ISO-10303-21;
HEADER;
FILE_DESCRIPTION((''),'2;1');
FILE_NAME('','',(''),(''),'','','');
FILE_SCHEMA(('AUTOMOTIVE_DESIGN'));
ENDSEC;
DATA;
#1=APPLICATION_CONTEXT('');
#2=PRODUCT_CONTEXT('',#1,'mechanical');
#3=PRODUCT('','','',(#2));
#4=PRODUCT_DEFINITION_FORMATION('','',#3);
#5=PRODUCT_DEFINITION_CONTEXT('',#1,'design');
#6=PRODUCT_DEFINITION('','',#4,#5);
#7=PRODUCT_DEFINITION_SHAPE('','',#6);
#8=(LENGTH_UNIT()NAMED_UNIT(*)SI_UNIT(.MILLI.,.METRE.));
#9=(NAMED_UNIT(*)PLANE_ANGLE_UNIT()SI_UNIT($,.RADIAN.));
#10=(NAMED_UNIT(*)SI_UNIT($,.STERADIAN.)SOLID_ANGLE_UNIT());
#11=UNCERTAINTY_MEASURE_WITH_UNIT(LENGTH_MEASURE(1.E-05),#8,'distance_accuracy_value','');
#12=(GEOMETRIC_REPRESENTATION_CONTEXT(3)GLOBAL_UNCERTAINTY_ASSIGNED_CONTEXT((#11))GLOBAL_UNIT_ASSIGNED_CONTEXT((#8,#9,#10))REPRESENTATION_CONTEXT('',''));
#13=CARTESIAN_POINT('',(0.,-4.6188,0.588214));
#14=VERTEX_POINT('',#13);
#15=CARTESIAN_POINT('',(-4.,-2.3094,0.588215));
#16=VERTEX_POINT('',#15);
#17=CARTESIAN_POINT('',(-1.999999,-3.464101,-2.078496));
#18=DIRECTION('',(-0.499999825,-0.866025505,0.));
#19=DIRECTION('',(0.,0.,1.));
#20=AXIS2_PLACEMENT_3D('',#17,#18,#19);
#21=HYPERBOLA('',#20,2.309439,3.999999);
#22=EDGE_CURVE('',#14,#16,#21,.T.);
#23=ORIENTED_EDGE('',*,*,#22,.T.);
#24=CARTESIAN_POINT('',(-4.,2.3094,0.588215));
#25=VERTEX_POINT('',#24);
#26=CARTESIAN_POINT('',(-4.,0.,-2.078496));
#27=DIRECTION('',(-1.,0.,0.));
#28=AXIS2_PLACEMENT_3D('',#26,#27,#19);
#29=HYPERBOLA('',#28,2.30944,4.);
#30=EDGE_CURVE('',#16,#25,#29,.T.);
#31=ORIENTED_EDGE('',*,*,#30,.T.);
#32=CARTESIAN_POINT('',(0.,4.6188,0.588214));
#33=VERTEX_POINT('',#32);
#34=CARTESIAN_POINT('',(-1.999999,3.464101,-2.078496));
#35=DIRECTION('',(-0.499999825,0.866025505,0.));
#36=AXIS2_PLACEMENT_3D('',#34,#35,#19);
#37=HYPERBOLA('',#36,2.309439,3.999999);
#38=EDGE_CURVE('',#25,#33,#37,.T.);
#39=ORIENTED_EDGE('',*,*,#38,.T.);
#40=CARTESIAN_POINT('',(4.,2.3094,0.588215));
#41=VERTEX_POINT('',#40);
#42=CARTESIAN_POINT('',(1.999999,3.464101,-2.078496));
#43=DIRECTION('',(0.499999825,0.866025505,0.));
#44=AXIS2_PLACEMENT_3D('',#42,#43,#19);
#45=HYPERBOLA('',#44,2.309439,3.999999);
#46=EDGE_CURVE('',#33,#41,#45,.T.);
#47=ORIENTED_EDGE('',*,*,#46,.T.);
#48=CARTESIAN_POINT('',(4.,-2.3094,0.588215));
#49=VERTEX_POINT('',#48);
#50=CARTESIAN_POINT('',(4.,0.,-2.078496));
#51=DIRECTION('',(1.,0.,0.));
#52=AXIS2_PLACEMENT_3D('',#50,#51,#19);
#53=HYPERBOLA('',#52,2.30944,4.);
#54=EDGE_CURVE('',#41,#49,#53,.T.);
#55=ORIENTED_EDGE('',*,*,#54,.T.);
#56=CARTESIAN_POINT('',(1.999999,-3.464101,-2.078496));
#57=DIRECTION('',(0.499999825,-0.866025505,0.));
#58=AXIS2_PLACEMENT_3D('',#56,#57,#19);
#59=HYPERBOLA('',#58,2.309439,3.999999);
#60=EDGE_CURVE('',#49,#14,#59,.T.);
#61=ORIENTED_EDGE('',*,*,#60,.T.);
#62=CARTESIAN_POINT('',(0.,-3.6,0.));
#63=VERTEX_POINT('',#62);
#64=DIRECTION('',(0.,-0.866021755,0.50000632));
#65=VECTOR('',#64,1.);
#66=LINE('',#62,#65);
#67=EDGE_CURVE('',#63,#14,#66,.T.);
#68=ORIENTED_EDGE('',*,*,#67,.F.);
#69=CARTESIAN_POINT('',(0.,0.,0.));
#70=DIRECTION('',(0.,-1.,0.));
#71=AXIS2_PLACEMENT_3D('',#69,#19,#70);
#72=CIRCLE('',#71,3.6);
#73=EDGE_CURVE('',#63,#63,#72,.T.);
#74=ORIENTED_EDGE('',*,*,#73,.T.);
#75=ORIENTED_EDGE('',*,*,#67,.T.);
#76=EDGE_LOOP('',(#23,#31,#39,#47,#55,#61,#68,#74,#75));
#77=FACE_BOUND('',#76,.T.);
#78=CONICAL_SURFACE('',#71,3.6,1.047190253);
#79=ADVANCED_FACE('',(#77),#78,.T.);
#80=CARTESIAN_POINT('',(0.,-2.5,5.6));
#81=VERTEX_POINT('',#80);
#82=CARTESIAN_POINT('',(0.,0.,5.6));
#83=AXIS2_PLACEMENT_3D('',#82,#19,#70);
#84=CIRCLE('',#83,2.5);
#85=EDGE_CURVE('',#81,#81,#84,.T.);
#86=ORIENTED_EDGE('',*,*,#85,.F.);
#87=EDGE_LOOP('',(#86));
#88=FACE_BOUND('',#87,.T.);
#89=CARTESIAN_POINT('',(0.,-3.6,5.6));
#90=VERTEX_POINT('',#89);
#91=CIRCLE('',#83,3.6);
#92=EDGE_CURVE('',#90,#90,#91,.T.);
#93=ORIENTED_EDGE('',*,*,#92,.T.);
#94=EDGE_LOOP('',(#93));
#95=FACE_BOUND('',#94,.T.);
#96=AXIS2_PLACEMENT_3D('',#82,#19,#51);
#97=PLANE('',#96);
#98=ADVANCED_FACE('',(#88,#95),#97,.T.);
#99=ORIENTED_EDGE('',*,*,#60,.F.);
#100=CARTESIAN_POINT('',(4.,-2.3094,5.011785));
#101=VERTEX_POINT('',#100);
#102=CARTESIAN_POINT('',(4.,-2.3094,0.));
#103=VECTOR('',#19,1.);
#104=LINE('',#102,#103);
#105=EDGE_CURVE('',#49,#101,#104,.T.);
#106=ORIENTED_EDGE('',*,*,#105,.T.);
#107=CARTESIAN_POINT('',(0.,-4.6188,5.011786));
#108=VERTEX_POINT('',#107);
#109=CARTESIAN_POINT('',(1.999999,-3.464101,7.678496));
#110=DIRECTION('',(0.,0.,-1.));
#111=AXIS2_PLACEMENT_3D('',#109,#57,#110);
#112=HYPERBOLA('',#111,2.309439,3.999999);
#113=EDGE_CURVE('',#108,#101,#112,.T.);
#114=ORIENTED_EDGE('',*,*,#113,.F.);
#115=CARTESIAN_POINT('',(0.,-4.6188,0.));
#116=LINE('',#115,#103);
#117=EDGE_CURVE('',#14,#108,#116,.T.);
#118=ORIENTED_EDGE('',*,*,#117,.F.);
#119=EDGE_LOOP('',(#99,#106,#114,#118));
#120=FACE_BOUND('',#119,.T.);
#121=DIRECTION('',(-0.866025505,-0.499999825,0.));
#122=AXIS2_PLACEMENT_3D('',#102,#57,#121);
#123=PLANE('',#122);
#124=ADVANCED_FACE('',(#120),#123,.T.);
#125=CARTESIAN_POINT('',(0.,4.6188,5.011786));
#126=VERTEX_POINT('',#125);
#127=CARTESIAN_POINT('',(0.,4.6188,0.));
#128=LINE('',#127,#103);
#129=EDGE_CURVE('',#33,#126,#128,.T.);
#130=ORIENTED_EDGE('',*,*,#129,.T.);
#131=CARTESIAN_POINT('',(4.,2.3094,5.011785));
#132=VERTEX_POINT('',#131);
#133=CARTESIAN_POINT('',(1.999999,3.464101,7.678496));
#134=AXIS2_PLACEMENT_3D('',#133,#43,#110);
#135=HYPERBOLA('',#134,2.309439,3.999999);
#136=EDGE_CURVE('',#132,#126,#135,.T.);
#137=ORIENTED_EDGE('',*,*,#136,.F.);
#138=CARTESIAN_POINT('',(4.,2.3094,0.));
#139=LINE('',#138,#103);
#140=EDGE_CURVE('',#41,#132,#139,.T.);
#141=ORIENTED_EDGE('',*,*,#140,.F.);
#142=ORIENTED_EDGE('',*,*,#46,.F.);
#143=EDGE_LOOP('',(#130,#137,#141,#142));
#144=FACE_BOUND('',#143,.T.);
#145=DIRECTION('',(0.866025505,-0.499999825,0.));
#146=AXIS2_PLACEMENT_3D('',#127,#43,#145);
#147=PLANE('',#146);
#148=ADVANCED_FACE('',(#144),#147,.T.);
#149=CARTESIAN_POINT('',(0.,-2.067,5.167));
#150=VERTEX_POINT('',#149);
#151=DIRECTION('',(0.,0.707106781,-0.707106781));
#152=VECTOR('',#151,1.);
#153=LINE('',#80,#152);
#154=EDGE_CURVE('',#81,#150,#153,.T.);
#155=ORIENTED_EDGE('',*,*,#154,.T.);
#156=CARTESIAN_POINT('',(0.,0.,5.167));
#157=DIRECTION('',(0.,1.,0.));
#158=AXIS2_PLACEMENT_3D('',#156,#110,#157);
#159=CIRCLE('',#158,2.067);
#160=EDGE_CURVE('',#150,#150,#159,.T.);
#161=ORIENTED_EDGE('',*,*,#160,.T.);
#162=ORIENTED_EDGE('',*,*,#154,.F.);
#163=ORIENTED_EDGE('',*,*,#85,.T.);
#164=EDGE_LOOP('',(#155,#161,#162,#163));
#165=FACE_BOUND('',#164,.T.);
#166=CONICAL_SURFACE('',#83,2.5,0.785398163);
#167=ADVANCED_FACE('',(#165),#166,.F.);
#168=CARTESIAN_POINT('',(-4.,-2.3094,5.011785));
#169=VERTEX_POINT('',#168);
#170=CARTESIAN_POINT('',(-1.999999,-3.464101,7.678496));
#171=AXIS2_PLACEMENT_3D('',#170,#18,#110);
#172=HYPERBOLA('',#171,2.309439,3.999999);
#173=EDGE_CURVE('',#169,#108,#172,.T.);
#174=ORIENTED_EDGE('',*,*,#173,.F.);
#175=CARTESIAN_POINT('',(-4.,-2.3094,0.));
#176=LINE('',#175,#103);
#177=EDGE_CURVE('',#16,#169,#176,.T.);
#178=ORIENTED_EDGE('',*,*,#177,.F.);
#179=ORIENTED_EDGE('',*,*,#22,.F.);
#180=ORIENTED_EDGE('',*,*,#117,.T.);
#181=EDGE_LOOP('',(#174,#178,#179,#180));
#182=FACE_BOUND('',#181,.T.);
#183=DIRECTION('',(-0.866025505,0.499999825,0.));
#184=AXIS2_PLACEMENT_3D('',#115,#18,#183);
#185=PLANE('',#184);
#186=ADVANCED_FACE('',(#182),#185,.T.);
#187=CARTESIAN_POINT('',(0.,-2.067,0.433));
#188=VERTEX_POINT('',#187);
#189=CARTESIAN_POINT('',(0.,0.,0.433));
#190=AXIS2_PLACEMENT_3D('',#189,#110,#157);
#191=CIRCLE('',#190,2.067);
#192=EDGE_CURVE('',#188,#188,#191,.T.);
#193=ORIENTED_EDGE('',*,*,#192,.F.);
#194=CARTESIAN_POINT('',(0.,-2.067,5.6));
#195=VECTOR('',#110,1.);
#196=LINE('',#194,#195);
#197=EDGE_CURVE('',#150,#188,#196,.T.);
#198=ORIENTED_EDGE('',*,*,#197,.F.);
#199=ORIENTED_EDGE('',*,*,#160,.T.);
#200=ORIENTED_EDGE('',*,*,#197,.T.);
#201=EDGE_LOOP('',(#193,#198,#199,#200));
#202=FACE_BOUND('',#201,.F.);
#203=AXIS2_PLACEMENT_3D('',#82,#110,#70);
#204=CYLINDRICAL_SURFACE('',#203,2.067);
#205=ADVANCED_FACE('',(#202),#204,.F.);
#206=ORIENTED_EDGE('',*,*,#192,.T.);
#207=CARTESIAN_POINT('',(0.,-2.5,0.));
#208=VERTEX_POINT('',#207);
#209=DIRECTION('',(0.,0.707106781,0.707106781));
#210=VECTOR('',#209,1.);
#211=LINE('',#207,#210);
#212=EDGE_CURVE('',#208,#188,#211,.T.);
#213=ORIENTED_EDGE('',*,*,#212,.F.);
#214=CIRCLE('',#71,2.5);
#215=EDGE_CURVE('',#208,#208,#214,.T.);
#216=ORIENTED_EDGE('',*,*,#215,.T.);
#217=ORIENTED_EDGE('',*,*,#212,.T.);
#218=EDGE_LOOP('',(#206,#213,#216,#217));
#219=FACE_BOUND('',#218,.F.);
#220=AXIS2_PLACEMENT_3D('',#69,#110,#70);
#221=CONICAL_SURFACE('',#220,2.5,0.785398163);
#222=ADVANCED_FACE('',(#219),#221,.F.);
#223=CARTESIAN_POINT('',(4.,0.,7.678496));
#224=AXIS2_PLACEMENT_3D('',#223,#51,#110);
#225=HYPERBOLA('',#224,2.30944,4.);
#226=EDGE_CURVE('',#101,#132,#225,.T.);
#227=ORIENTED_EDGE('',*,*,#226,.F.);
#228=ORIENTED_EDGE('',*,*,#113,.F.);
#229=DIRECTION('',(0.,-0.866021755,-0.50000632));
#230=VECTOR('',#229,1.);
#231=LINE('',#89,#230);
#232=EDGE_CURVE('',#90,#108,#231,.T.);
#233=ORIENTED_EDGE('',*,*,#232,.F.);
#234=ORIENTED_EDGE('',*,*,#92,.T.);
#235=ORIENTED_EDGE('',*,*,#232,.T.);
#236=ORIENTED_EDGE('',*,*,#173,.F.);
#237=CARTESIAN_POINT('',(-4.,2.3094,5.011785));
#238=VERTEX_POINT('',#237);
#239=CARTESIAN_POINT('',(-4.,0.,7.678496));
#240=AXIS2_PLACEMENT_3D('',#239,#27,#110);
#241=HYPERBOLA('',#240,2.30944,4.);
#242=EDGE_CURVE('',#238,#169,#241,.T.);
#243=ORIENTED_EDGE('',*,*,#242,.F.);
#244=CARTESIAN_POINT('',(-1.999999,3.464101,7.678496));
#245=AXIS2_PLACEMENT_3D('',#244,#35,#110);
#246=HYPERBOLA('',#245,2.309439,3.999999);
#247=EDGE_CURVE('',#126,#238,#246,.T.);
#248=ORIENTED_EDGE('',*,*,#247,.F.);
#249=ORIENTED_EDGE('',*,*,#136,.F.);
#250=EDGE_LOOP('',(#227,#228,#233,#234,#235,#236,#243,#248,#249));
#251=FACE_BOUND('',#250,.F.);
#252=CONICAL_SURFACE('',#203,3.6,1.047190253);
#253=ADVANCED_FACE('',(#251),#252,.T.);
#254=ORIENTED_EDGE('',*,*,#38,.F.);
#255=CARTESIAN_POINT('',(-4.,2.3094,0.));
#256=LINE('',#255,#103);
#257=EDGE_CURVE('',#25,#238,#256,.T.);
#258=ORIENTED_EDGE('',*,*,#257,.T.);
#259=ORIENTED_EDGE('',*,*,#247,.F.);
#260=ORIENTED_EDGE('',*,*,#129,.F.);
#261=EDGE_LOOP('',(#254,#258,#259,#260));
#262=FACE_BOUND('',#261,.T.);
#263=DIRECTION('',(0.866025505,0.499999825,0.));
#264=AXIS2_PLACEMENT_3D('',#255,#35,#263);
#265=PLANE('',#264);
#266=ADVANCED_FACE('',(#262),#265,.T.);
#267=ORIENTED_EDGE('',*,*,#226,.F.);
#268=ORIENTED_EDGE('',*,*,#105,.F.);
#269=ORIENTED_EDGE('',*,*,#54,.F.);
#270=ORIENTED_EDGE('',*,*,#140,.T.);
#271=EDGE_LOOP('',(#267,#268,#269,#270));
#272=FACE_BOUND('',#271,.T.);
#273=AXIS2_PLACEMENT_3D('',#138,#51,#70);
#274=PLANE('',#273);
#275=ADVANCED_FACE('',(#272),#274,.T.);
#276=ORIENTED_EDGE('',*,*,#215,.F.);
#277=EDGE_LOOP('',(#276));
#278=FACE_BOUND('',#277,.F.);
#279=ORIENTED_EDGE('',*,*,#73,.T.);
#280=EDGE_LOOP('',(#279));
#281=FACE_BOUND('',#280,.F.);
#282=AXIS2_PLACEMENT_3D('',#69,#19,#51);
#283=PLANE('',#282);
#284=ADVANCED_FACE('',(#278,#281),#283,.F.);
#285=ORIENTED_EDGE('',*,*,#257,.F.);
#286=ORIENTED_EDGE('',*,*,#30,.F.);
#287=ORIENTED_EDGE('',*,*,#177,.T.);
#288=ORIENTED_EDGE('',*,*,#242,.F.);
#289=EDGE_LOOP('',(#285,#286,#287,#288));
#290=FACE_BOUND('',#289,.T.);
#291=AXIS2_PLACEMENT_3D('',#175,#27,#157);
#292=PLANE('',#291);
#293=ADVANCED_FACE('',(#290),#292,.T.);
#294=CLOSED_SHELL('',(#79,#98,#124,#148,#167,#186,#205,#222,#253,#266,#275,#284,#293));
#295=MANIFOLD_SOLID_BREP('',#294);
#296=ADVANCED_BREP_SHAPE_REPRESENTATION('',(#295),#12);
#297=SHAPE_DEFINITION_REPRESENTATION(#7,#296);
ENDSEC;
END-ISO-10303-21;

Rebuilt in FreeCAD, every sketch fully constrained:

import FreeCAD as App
import Part
import Sketcher

V = App.Vector
Q = App.Units.Quantity

doc = App.newDocument("Part")
params = doc.addObject("Spreadsheet::Sheet", "Params")
for row, (alias, value) in enumerate([
    ("pad1_length", "5.6 mm"),
    ("hole_diameter", "4.134 mm"),
    ("sketch3_width", "2.5 mm"),
    ("groove_angle", "360 deg"),
    ("sketch4_width", "2.5 mm"),
    ("groove2_angle", "360 deg"),
    ("sketch5_width", "2.5 mm"),
    ("groove3_angle", "360 deg"),
], start=1):
    params.set(f"A{row}", alias)
    params.set(f"B{row}", "=" + value)
    params.setAlias(f"B{row}", alias)

body = doc.addObject("PartDesign::Body", "Body")

# Sketch on XY plane
sketch1 = doc.addObject("Sketcher::SketchObject", "Sketch")
body.addObject(sketch1)
sketch1.AttachmentSupport = (doc.XY_Plane, [""])
sketch1.MapMode = "FlatFace"
sketch1.addGeometry([
    Part.LineSegment(V(4, 2.3, 0), V(0, 4.6, 0)),  # 0
    Part.LineSegment(V(0, 4.6, 0), V(-4, 2.3, 0)),  # 1
    Part.LineSegment(V(-4, 2.3, 0), V(-4, -2.3, 0)),  # 2
    Part.LineSegment(V(-4, -2.3, 0), V(0, -4.6, 0)),  # 3
    Part.LineSegment(V(0, -4.6, 0), V(4, -2.3, 0)),  # 4
    Part.LineSegment(V(4, -2.3, 0), V(4, 2.3, 0)),  # 5
], False)
sketch1.addConstraint([
    Sketcher.Constraint("Coincident", 0, 2, 1, 1),
    Sketcher.Constraint("Coincident", 1, 2, 2, 1),
    Sketcher.Constraint("Coincident", 2, 2, 3, 1),
    Sketcher.Constraint("Coincident", 3, 2, 4, 1),
    Sketcher.Constraint("Coincident", 4, 2, 5, 1),
    Sketcher.Constraint("Coincident", 5, 2, 0, 1),
    Sketcher.Constraint("Vertical", 2),
    Sketcher.Constraint("Vertical", 5),
    Sketcher.Constraint("Symmetric", 0, 2, 3, 2, -1, 1),
    Sketcher.Constraint("Symmetric", 1, 2, 4, 2, -1, 1),
    Sketcher.Constraint("PointOnObject", 0, 2, -2),
    Sketcher.Constraint("Parallel", 0, 3),
    Sketcher.Constraint("Horizontal", 2, 2, 4, 2),
    Sketcher.Constraint("DistanceX", 2, 2, 4, 2, 8.0),
    Sketcher.Constraint("Angle", 0, Q("150 deg")),
    Sketcher.Constraint("DistanceY", 2, 2, 2, 1, 4.6188),
])
pad1 = doc.addObject("PartDesign::Pad", "Pad")
body.addObject(pad1)
pad1.Profile = sketch1
pad1.setExpression("Length", "Params.pad1_length")

# Sketch on XY plane
sketch2 = doc.addObject("Sketcher::SketchObject", "Sketch001")
body.addObject(sketch2)
sketch2.AttachmentSupport = (doc.XY_Plane, [""])
sketch2.MapMode = "FlatFace"
sketch2.AttachmentOffset = App.Placement(V(0, 0, 5.6), App.Rotation())
sketch2.addGeometry(Part.Circle(V(0, 0, 0), V(0, 0, 1), 2.1), False)
sketch2.addConstraint([
    Sketcher.Constraint("Coincident", 0, 3, -1, 1),
    Sketcher.Constraint("Diameter", 0, 4.134),
])
doc.recompute()
hole = doc.addObject("PartDesign::Hole", "Hole")
body.addObject(hole)
hole.Profile = sketch2
hole.ThreadType = "None"
hole.setExpression("Diameter", "Params.hole_diameter")
hole.DepthType = "ThroughAll"

# Sketch on YZ plane
sketch3 = doc.addObject("Sketcher::SketchObject", "Sketch002")
body.addObject(sketch3)
sketch3.AttachmentSupport = (doc.YZ_Plane, [""])
sketch3.MapMode = "FlatFace"
sketch3.addGeometry([
    Part.LineSegment(V(0, 5.6, 0), V(-2.5, 5.6, 0)),
    Part.LineSegment(V(-2.5, 5.6, 0), V(0, 3.1, 0)),
    Part.LineSegment(V(0, 3.1, 0), V(0, 5.6, 0)),
], False)
sketch3.addConstraint([
    Sketcher.Constraint("Coincident", 0, 2, 1, 1),
    Sketcher.Constraint("Coincident", 1, 2, 2, 1),
    Sketcher.Constraint("Coincident", 2, 2, 0, 1),
    Sketcher.Constraint("Horizontal", 0),
    Sketcher.Constraint("Vertical", 2),
    Sketcher.Constraint("PointOnObject", 1, 2, -2),
    Sketcher.Constraint("Equal", 0, 2),
    Sketcher.Constraint("DistanceX", 0, 2, 0, 1, 2.5),
    Sketcher.Constraint("DistanceY", -1, 1, 0, 2, 5.6),
])
sketch3.setExpression("Constraints[7]", "Params.sketch3_width")
groove = doc.addObject("PartDesign::Groove", "Groove")
body.addObject(groove)
groove.Profile = sketch3
groove.ReferenceAxis = (sketch3, ["V_Axis"])
groove.setExpression("Angle", "Params.groove_angle")

# Sketch on YZ plane
sketch4 = doc.addObject("Sketcher::SketchObject", "Sketch003")
body.addObject(sketch4)
sketch4.AttachmentSupport = (doc.YZ_Plane, [""])
sketch4.MapMode = "FlatFace"
sketch4.addGeometry([
    Part.LineSegment(V(-6.1, 4.2, 0), V(-3.6, 5.6, 0)),
    Part.LineSegment(V(-3.6, 5.6, 0), V(-6.1, 5.6, 0)),
    Part.LineSegment(V(-6.1, 5.6, 0), V(-6.1, 4.2, 0)),
], False)
sketch4.addConstraint([
    Sketcher.Constraint("Coincident", 0, 2, 1, 1),
    Sketcher.Constraint("Coincident", 1, 2, 2, 1),
    Sketcher.Constraint("Coincident", 2, 2, 0, 1),
    Sketcher.Constraint("Horizontal", 1),
    Sketcher.Constraint("Vertical", 2),
    Sketcher.Constraint("Angle", 0, Q("30.0004 deg")),
    Sketcher.Constraint("DistanceY", -1, 1, 0, 2, 5.6),
    Sketcher.Constraint("DistanceX", 1, 2, 1, 1, 2.5),
    Sketcher.Constraint("DistanceX", 0, 2, -1, 1, 3.6),
])
sketch4.setExpression("Constraints[7]", "Params.sketch4_width")
groove2 = doc.addObject("PartDesign::Groove", "Groove001")
body.addObject(groove2)
groove2.Profile = sketch4
groove2.ReferenceAxis = (sketch4, ["V_Axis"])
groove2.setExpression("Angle", "Params.groove2_angle")
doc.recompute()

datumplane = doc.addObject("PartDesign::Plane", "DatumPlane")
body.addObject(datumplane)
datumplane.AttachmentSupport = (doc.XY_Plane, [""])
datumplane.MapMode = "FlatFace"
datumplane.AttachmentOffset = App.Placement(V(0, 0, 2.8), App.Rotation())
mirrored = doc.addObject("PartDesign::Mirrored", "Mirrored")
body.addObject(mirrored)
mirrored.Originals = [groove2]
mirrored.MirrorPlane = (datumplane, [""])
body.Tip = mirrored

# Sketch on YZ plane
sketch5 = doc.addObject("Sketcher::SketchObject", "Sketch004")
body.addObject(sketch5)
sketch5.AttachmentSupport = (doc.YZ_Plane, [""])
sketch5.MapMode = "FlatFace"
sketch5.addGeometry([
    Part.LineSegment(V(0, 2.5, 0), V(-2.5, 0, 0)),
    Part.LineSegment(V(-2.5, 0, 0), V(0, 0, 0)),
    Part.LineSegment(V(0, 0, 0), V(0, 2.5, 0)),
], False)
sketch5.addConstraint([
    Sketcher.Constraint("Coincident", 0, 2, 1, 1),
    Sketcher.Constraint("Coincident", 1, 2, 2, 1),
    Sketcher.Constraint("Coincident", 2, 2, 0, 1),
    Sketcher.Constraint("Horizontal", 1),
    Sketcher.Constraint("Vertical", 2),
    Sketcher.Constraint("Coincident", 1, 2, -1, 1),
    Sketcher.Constraint("Equal", 1, 2),
    Sketcher.Constraint("DistanceX", 1, 1, 1, 2, 2.5),
])
sketch5.setExpression("Constraints[7]", "Params.sketch5_width")
groove3 = doc.addObject("PartDesign::Groove", "Groove002")
body.addObject(groove3)
groove3.Profile = sketch5
groove3.ReferenceAxis = (sketch5, ["V_Axis"])
groove3.setExpression("Angle", "Params.groove3_angle")

doc.recompute()
